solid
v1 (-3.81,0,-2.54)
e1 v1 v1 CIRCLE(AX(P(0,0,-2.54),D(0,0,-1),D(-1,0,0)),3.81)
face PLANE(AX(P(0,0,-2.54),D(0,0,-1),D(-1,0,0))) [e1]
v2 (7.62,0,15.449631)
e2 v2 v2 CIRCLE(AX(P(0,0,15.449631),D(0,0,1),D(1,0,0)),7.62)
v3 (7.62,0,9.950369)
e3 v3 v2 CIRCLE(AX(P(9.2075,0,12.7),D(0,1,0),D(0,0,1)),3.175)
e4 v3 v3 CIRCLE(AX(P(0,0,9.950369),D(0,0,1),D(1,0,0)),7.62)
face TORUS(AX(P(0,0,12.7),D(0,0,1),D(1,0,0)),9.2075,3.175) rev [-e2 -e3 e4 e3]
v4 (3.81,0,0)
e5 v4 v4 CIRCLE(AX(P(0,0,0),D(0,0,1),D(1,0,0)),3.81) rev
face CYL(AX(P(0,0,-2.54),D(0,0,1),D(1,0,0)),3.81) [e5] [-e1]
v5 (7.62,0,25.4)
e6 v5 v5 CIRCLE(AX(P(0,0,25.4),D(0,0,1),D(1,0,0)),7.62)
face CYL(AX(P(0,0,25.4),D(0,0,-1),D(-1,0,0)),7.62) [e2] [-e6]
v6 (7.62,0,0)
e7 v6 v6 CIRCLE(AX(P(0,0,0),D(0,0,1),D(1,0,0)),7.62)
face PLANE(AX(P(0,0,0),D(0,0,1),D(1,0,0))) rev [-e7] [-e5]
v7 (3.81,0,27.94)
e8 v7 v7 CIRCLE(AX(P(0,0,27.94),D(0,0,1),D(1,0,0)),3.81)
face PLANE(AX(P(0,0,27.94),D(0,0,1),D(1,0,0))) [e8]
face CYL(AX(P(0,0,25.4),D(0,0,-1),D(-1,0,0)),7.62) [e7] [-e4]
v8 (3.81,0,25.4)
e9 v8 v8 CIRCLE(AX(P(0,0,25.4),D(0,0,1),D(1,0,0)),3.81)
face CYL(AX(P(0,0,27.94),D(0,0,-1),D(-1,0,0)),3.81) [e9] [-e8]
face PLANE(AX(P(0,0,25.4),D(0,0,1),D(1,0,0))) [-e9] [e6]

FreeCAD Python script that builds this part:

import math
import FreeCAD as App
import Part
import Sketcher
Q = App.Units.Quantity

doc = App.newDocument("Part")
body = doc.addObject("PartDesign::Body", "Body")

# Sketch on XY plane
sketch1 = body.newObject("Sketcher::SketchObject", "Sketch")
sketch1.AttachmentSupport = (doc.getObject("XY_Plane"), [""])
sketch1.MapMode = "FlatFace"
sketch1.addGeometry(Part.Circle(App.Vector(0, 0, 0), App.Vector(0, 0, 1), 7.62), False)
sketch1.addConstraint(Sketcher.Constraint("Coincident", 0, 3, -1, 1))
sketch1.addConstraint(Sketcher.Constraint("Diameter", 0, Q("0.6 in")))
pad1 = body.newObject("PartDesign::Pad", "Pad")
pad1.Profile = sketch1
pad1.Length = Q("1 in")

# Sketch on XZ plane
sketch2 = body.newObject("Sketcher::SketchObject", "Sketch001")
sketch2.AttachmentSupport = (doc.getObject("XZ_Plane"), [""])
sketch2.MapMode = "FlatFace"
sketch2.addGeometry(Part.LineSegment(App.Vector(7.62, 15.449631, 0), App.Vector(7.62, 9.950369, 0)), False)
sketch2.addGeometry(Part.ArcOfCircle(Part.Circle(App.Vector(9.2075, 12.7, 0), App.Vector(0, 0, 1), 3.175), math.radians(120), math.radians(240)), False)
sketch2.addConstraint(Sketcher.Constraint("Coincident", 0, 1, 1, 1))
sketch2.addConstraint(Sketcher.Constraint("Coincident", 1, 2, 0, 2))
sketch2.addConstraint(Sketcher.Constraint("Vertical", 0))
sketch2.addConstraint(Sketcher.Constraint("Radius", 1, Q("0.125 in")))
sketch2.addConstraint(Sketcher.Constraint("DistanceY", -1, 1, 1, 3, Q("0.5 in")))
sketch2.addConstraint(Sketcher.Constraint("DistanceX", -1, 1, 0, 1, Q("0.3 in")))
sketch2.addConstraint(Sketcher.Constraint("DistanceX", 0, 1, 1, 3, Q("0.0625 in")))

# Sketch on XY plane
sketch3 = body.newObject("Sketcher::SketchObject", "Sketch002")
sketch3.AttachmentSupport = (doc.getObject("XY_Plane"), [""])
sketch3.MapMode = "FlatFace"
sketch3.addGeometry(Part.ArcOfCircle(Part.Circle(App.Vector(0, 0, 0), App.Vector(0, 0, 1), 7.62), math.radians(0), math.radians(90)), False)
sketch3.addGeometry(Part.ArcOfCircle(Part.Circle(App.Vector(0, 0, 0), App.Vector(0, 0, 1), 7.62), math.radians(90), math.radians(180)), False)
sketch3.addGeometry(Part.ArcOfCircle(Part.Circle(App.Vector(0, 0, 0), App.Vector(0, 0, 1), 7.62), math.radians(180), math.radians(270)), False)
sketch3.addGeometry(Part.ArcOfCircle(Part.Circle(App.Vector(0, 0, 0), App.Vector(0, 0, 1), 7.62), math.radians(-90), math.radians(0)), False)
sketch3.addConstraint(Sketcher.Constraint("Tangent", 0, 2, 1, 1))
sketch3.addConstraint(Sketcher.Constraint("Tangent", 1, 2, 2, 1))
sketch3.addConstraint(Sketcher.Constraint("Tangent", 2, 2, 3, 1))
sketch3.addConstraint(Sketcher.Constraint("Tangent", 3, 2, 0, 1))
sketch3.addConstraint(Sketcher.Constraint("Coincident", 0, 3, -1, 1))
sketch3.addConstraint(Sketcher.Constraint("Equal", 0, 1))
sketch3.addConstraint(Sketcher.Constraint("PointOnObject", 0, 2, -2))
sketch3.addConstraint(Sketcher.Constraint("PointOnObject", 1, 2, -1))
sketch3.addConstraint(Sketcher.Constraint("PointOnObject", 2, 2, -2))
sketch3.addConstraint(Sketcher.Constraint("PointOnObject", 3, 2, -1))
sketch3.addConstraint(Sketcher.Constraint("Radius", 0, Q("0.3 in")))
doc.recompute()

subtractivepipe = body.newObject("PartDesign::SubtractivePipe", "SubtractivePipe")
subtractivepipe.Profile = sketch2
subtractivepipe.Spine = (sketch3, ["Edge1", "Edge2", "Edge3", "Edge4"])

# Sketch on XY plane
sketch4 = body.newObject("Sketcher::SketchObject", "Sketch003")
sketch4.AttachmentSupport = (doc.getObject("XY_Plane"), [""])
sketch4.MapMode = "FlatFace"
sketch4.AttachmentOffset = App.Placement(App.Vector(0, 0, 1 * 25.4), App.Rotation())
sketch4.addGeometry(Part.Circle(App.Vector(0, 0, 0), App.Vector(0, 0, 1), 3.81), False)
sketch4.addConstraint(Sketcher.Constraint("Coincident", 0, 3, -1, 1))
sketch4.addConstraint(Sketcher.Constraint("Diameter", 0, Q("0.3 in")))
pad2 = body.newObject("PartDesign::Pad", "Pad001")
pad2.Profile = sketch4
pad2.Length = Q("0.1 in")

# Sketch on XY plane
sketch5 = body.newObject("Sketcher::SketchObject", "Sketch004")
sketch5.AttachmentSupport = (doc.getObject("XY_Plane"), [""])
sketch5.MapMode = "FlatFace"
sketch5.addGeometry(Part.Circle(App.Vector(0, 0, 0), App.Vector(0, 0, 1), 3.81), False)
sketch5.addConstraint(Sketcher.Constraint("Coincident", 0, 3, -1, 1))
sketch5.addConstraint(Sketcher.Constraint("Diameter", 0, Q("0.3 in")))
pad3 = body.newObject("PartDesign::Pad", "Pad002")
pad3.Profile = sketch5
pad3.Length = Q("0.1 in")
pad3.Reversed = True

doc.recompute()
